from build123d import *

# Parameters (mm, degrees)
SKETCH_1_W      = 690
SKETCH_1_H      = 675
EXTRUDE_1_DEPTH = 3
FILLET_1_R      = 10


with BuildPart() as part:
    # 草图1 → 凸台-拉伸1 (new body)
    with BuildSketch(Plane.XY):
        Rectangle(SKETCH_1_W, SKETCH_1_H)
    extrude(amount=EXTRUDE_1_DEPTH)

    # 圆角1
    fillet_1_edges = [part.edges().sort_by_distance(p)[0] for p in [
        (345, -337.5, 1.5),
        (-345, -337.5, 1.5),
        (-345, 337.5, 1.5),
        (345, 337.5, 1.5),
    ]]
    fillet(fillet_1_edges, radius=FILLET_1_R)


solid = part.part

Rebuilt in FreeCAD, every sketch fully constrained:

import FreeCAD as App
import Part
import Sketcher
Q = App.Units.Quantity


def edges_at(feature, points):
    """Names of the edges that pass closest to the given points."""
    edges = feature.Shape.Edges
    near = lambda p: min(range(len(edges)), key=lambda i: edges[i].distToShape(Part.Vertex(*p))[0])
    return sorted({f"Edge{near(p) + 1}" for p in points})

doc = App.newDocument("Part")
params = doc.addObject("Spreadsheet::Sheet", "Params")
for row, (alias, value) in enumerate([
    ("sketch1_width", "690 mm"),
    ("sketch1_height", "675 mm"),
    ("pad1_length", "3 mm"),
    ("fillet_radius", "10 mm"),
], start=1):
    params.set(f"A{row}", alias)
    params.set(f"B{row}", "=" + value)
    params.setAlias(f"B{row}", alias)

body = doc.addObject("PartDesign::Body", "Body")

# Sketch on XY plane
sketch1 = body.newObject("Sketcher::SketchObject", "Sketch")
sketch1.AttachmentSupport = (doc.getObject("XY_Plane"), [""])
sketch1.MapMode = "FlatFace"
sketch1.addGeometry([
    Part.LineSegment(App.Vector(-345, 337.5, 0), App.Vector(-345, -337.5, 0)),
    Part.LineSegment(App.Vector(-345, -337.5, 0), App.Vector(345, -337.5, 0)),
    Part.LineSegment(App.Vector(345, -337.5, 0), App.Vector(345, 337.5, 0)),
    Part.LineSegment(App.Vector(345, 337.5, 0), App.Vector(-345, 337.5, 0)),
], False)
sketch1.addConstraint([
    Sketcher.Constraint("Coincident", 0, 2, 1, 1),
    Sketcher.Constraint("Coincident", 1, 2, 2, 1),
    Sketcher.Constraint("Coincident", 2, 2, 3, 1),
    Sketcher.Constraint("Coincident", 3, 2, 0, 1),
    Sketcher.Constraint("Vertical", 0),
    Sketcher.Constraint("Horizontal", 1),
    Sketcher.Constraint("Vertical", 2),
    Sketcher.Constraint("Horizontal", 3),
    Sketcher.Constraint("Symmetric", 0, 2, 2, 2, -1, 1),
    Sketcher.Constraint("DistanceX", 1, 1, 1, 2, Q("690 mm")),
    Sketcher.Constraint("DistanceY", 0, 2, 0, 1, Q("675 mm")),
])
sketch1.setExpression("Constraints[9]", "Params.sketch1_width")
sketch1.setExpression("Constraints[10]", "Params.sketch1_height")
pad1 = body.newObject("PartDesign::Pad", "Pad")
pad1.Profile = sketch1
pad1.setExpression("Length", "Params.pad1_length")
doc.recompute()

fillet = body.newObject("PartDesign::Fillet", "Fillet")
fillet.Base = (pad1, edges_at(pad1, [
    (345, -337.5, 1.5),
    (-345, -337.5, 1.5),
    (-345, 337.5, 1.5),
    (345, 337.5, 1.5),
]))
fillet.setExpression("Radius", "Params.fillet_radius")

doc.recompute()
